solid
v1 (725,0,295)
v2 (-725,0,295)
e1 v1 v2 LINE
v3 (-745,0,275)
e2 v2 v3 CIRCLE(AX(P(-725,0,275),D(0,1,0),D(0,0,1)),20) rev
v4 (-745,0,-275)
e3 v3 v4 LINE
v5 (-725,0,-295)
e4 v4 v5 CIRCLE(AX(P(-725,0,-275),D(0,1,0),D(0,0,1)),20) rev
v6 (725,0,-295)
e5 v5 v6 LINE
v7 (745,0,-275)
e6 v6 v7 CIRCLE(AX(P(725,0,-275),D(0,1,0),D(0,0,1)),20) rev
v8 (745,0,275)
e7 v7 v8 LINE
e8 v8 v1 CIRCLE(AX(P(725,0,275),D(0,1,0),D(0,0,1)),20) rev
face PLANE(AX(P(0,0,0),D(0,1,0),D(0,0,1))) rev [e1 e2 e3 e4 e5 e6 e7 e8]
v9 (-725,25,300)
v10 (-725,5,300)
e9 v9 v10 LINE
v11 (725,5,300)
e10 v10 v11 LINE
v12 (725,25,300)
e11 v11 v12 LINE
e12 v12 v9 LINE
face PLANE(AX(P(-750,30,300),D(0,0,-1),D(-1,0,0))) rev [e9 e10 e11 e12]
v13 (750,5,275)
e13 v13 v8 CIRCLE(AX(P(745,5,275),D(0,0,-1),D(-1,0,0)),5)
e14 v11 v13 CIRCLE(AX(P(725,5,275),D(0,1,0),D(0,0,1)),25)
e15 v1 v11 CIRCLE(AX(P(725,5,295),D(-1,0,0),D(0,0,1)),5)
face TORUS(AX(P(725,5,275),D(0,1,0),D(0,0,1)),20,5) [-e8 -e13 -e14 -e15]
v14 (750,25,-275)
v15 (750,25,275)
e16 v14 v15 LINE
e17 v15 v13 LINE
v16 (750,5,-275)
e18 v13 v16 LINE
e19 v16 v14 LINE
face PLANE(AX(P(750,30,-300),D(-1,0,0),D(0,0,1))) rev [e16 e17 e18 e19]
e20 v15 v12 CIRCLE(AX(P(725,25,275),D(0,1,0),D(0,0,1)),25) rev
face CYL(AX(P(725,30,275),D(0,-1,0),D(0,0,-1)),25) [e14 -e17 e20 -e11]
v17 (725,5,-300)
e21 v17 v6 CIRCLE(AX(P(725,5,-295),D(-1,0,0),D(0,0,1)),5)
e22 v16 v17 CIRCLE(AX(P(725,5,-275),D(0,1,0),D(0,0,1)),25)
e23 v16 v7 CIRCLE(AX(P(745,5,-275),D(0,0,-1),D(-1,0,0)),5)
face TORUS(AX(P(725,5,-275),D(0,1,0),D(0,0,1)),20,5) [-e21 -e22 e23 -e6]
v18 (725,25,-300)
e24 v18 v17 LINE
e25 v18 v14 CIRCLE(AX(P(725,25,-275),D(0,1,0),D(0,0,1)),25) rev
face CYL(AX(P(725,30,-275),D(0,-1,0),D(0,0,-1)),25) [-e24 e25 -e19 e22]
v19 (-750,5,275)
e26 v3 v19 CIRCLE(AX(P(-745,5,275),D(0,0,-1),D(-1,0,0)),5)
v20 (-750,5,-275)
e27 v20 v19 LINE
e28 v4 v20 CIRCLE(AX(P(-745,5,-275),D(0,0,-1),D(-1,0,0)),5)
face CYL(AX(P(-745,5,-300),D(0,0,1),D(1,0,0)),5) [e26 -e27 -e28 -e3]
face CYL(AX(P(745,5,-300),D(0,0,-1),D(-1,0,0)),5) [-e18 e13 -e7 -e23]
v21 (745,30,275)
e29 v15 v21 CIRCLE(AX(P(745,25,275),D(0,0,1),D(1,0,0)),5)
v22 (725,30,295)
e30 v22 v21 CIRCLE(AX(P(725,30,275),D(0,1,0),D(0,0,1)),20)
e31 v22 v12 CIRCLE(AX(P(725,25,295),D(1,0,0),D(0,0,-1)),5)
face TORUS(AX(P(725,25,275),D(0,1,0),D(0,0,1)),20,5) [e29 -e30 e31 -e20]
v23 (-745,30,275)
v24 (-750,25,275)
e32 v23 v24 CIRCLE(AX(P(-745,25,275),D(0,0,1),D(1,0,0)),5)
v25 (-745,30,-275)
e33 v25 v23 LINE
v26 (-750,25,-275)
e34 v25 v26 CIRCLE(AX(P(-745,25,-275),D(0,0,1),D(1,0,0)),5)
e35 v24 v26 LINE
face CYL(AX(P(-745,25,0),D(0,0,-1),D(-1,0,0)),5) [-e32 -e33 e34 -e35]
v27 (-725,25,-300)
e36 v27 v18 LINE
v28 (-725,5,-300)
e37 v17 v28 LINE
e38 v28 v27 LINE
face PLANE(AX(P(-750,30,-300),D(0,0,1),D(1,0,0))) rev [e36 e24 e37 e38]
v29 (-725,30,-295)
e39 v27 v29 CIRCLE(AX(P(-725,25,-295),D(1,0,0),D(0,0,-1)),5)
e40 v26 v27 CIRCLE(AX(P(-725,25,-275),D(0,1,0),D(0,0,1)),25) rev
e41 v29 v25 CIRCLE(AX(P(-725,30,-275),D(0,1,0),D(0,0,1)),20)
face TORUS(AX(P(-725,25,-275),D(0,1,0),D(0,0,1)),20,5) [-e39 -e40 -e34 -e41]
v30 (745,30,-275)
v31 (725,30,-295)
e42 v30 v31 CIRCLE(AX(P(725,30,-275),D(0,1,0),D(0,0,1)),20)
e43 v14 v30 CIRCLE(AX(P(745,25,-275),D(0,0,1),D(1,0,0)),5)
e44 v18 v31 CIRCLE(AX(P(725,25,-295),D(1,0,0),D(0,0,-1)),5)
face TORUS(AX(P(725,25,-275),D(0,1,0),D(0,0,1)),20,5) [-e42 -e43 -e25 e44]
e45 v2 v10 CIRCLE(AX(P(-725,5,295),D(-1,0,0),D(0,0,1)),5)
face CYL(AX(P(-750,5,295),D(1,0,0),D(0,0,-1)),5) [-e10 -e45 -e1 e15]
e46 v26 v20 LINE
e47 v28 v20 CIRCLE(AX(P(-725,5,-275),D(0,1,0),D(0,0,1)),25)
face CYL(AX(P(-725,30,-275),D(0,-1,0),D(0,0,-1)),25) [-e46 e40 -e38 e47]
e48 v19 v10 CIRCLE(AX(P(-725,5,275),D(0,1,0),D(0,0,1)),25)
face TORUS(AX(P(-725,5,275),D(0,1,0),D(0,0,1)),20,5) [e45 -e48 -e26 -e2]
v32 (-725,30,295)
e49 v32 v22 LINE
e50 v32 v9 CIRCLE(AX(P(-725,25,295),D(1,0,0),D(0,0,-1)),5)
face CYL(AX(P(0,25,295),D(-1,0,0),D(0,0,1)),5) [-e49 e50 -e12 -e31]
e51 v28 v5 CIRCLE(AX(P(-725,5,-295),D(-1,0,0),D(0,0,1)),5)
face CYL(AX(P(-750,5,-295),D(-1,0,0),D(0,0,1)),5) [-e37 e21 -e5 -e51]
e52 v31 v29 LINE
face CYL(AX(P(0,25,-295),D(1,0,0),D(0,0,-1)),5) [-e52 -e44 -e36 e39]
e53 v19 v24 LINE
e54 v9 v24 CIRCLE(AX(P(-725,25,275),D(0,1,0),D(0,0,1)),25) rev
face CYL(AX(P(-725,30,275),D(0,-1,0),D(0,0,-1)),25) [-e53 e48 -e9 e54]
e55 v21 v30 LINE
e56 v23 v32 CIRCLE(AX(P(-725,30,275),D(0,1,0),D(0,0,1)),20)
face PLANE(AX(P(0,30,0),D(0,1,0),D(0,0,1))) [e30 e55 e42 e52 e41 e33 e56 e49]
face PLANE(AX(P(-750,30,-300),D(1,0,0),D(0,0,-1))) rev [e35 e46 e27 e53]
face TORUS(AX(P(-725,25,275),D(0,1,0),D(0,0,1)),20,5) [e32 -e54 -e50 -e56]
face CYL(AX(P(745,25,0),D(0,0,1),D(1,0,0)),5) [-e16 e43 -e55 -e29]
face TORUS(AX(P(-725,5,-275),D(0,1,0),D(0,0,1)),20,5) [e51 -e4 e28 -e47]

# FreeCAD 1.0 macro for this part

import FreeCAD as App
import Part
import Sketcher
from FreeCAD import Vector
Q = App.Units.Quantity


def edges_at(feature, points):
    """Names of the edges that pass closest to the given points."""
    edges = feature.Shape.Edges
    near = lambda p: min(range(len(edges)), key=lambda i: edges[i].distToShape(Part.Vertex(*p))[0])
    return sorted({f"Edge{near(p) + 1}" for p in points})


def add_polygon(sketch, points):
    """Adds a closed chain of lines whose ends are joined by coincident constraints."""
    first, n = sketch.GeometryCount, len(points)
    for a, b in zip(points, points[1:] + points[:1]):
        sketch.addGeometry(Part.LineSegment(App.Vector(*a, 0), App.Vector(*b, 0)), False)
    for i in range(n):
        sketch.addConstraint(Sketcher.Constraint("Coincident", first + i, 2, first + (i + 1) % n, 1))

doc = App.newDocument("Part")
body = doc.addObject("PartDesign::Body", "Body")

sketch1 = body.newObject("Sketcher::SketchObject", "Sketch")
sketch1.AttachmentSupport = (doc.getObject("XZ_Plane"), [""])
sketch1.MapMode = "FlatFace"
add_polygon(sketch1, [(-750, -300), (-750, 300), (750, 300), (750, -300)])
sketch1.addConstraint([
    Sketcher.Constraint("Vertical", 0),
    Sketcher.Constraint("Horizontal", 1),
    Sketcher.Constraint("Vertical", 2),
    Sketcher.Constraint("Horizontal", 3),
    Sketcher.Constraint("Symmetric", 0, 2, 2, 2, -1, 1),
    Sketcher.Constraint("DistanceX", 1, 1, 1, 2, Q("1500 mm")),
    Sketcher.Constraint("DistanceY", 0, 1, 0, 2, Q("600 mm")),
])
pad1 = body.newObject("PartDesign::Pad", "Pad")
pad1.Profile = sketch1
pad1.Length = 30
pad1.Reversed = True
doc.recompute()

fillet = body.newObject("PartDesign::Fillet", "Fillet")
fillet.Base = (pad1, edges_at(pad1, [
    (750, 15, 300),
    (-750, 15, 300),
    (-750, 15, -300),
    (750, 15, -300),
]))
fillet.Radius = 25
doc.recompute()

fillet2 = body.newObject("PartDesign::Fillet", "Fillet001")
fillet2.Base = (fillet, edges_at(fillet, [
    (0, 0, -300),
    (0, 30, -300),
    (750, 0, 0),
    (0, 0, 300),
    (-750, 0, 0),
    (-742.678, 0, 292.678),
    (-742.678, 0, -292.678),
    (742.678, 0, 292.678),
    (742.678, 0, -292.678),
    (750, 30, 0),
    (-750, 30, 0),
    (0, 30, 300),
    (-742.678, 30, 292.678),
    (-742.678, 30, -292.678),
    (742.678, 30, 292.678),
    (742.678, 30, -292.678),
]))
fillet2.Radius = 5

doc.recompute()
